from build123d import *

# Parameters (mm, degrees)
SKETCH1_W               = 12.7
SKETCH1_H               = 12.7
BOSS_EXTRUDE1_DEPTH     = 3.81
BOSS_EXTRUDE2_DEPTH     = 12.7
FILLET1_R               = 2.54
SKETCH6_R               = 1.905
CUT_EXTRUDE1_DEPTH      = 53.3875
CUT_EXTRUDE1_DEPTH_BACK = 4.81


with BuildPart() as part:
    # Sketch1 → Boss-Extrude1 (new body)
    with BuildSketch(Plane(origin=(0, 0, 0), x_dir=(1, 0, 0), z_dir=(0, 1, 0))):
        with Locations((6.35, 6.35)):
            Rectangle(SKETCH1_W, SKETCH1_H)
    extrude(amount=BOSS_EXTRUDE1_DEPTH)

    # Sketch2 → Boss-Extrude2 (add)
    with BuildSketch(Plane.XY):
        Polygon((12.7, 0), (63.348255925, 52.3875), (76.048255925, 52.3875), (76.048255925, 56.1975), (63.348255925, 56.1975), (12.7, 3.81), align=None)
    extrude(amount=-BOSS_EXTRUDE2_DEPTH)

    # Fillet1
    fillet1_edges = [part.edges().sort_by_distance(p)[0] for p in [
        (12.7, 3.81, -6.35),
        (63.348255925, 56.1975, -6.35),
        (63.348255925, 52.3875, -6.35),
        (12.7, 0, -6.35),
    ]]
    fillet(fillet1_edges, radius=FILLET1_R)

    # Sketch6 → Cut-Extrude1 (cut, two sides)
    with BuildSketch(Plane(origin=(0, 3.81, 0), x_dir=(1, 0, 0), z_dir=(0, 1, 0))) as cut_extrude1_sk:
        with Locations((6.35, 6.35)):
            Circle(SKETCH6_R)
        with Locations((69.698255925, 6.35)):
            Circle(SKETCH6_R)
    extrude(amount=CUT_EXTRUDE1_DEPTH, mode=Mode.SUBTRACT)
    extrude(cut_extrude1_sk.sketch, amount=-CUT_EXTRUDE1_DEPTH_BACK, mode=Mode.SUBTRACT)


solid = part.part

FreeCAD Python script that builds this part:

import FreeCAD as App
import Part
import Sketcher
from FreeCAD import Vector
Q = App.Units.Quantity


def edges_at(feature, points):
    """Names of the edges that pass closest to the given points."""
    edges = feature.Shape.Edges
    near = lambda p: min(range(len(edges)), key=lambda i: edges[i].distToShape(Part.Vertex(*p))[0])
    return sorted({f"Edge{near(p) + 1}" for p in points})

doc = App.newDocument("Part")
params = doc.addObject("Spreadsheet::Sheet", "Params")
for row, (alias, value) in enumerate([
    ("sketch1_width", "0.5 in"),
    ("pad1_length", "0.15 in"),
    ("sketch2_width", "0.5 in"),
    ("sketch2_height", "0.15 in"),
    ("pad2_length", "0.5 in"),
    ("fillet_radius", "0.1 in"),
    ("sketch3_diameter", "0.15 in"),
], start=1):
    params.set(f"A{row}", alias)
    params.set(f"B{row}", "=" + value)
    params.setAlias(f"B{row}", alias)

body = doc.addObject("PartDesign::Body", "Body")

sketch1 = body.newObject("Sketcher::SketchObject", "Sketch")
sketch1.AttachmentSupport = (doc.getObject("XZ_Plane"), [""])
sketch1.MapMode = "FlatFace"
sketch1.addGeometry(Part.LineSegment(Vector(0, -12.7, 0), Vector(0, 0, 0)), False)
sketch1.addGeometry(Part.LineSegment(Vector(0, 0, 0), Vector(12.7, 0, 0)), False)
sketch1.addGeometry(Part.LineSegment(Vector(12.7, 0, 0), Vector(12.7, -12.7, 0)), False)
sketch1.addGeometry(Part.LineSegment(Vector(12.7, -12.7, 0), Vector(0, -12.7, 0)), False)
sketch1.addConstraint(Sketcher.Constraint("Coincident", 0, 2, 1, 1))
sketch1.addConstraint(Sketcher.Constraint("Coincident", 1, 2, 2, 1))
sketch1.addConstraint(Sketcher.Constraint("Coincident", 2, 2, 3, 1))
sketch1.addConstraint(Sketcher.Constraint("Coincident", 3, 2, 0, 1))
sketch1.addConstraint(Sketcher.Constraint("Vertical", 0))
sketch1.addConstraint(Sketcher.Constraint("Horizontal", 1))
sketch1.addConstraint(Sketcher.Constraint("Vertical", 2))
sketch1.addConstraint(Sketcher.Constraint("Horizontal", 3))
sketch1.addConstraint(Sketcher.Constraint("Coincident", 0, 2, -1, 1))
sketch1.addConstraint(Sketcher.Constraint("Equal", 3, 0))
sketch1.addConstraint(Sketcher.Constraint("DistanceX", 1, 1, 1, 2, Q("0.5 in")))
sketch1.setExpression("Constraints[10]", "Params.sketch1_width")
pad1 = body.newObject("PartDesign::Pad", "Pad")
pad1.Profile = sketch1
pad1.setExpression("Length", "Params.pad1_length")
pad1.Reversed = True

sketch2 = body.newObject("Sketcher::SketchObject", "Sketch001")
sketch2.AttachmentSupport = (doc.getObject("XY_Plane"), [""])
sketch2.MapMode = "FlatFace"
sketch2.addGeometry(Part.LineSegment(Vector(12.7, 0, 0), Vector(63.348256, 52.3875, 0)), False)
sketch2.addGeometry(Part.LineSegment(Vector(63.348256, 52.3875, 0), Vector(76.048256, 52.3875, 0)), False)
sketch2.addGeometry(Part.LineSegment(Vector(76.048256, 52.3875, 0), Vector(76.048256, 56.1975, 0)), False)
sketch2.addGeometry(Part.LineSegment(Vector(76.048256, 56.1975, 0), Vector(63.348256, 56.1975, 0)), False)
sketch2.addGeometry(Part.LineSegment(Vector(63.348256, 56.1975, 0), Vector(12.7, 3.81, 0)), False)
sketch2.addGeometry(Part.LineSegment(Vector(12.7, 3.81, 0), Vector(12.7, 0, 0)), False)
sketch2.addConstraint(Sketcher.Constraint("Coincident", 0, 2, 1, 1))
sketch2.addConstraint(Sketcher.Constraint("Coincident", 1, 2, 2, 1))
sketch2.addConstraint(Sketcher.Constraint("Coincident", 2, 2, 3, 1))
sketch2.addConstraint(Sketcher.Constraint("Coincident", 3, 2, 4, 1))
sketch2.addConstraint(Sketcher.Constraint("Coincident", 4, 2, 5, 1))
sketch2.addConstraint(Sketcher.Constraint("Coincident", 5, 2, 0, 1))
sketch2.addConstraint(Sketcher.Constraint("Horizontal", 1))
sketch2.addConstraint(Sketcher.Constraint("Vertical", 2))
sketch2.addConstraint(Sketcher.Constraint("Horizontal", 3))
sketch2.addConstraint(Sketcher.Constraint("Vertical", 5))
sketch2.addConstraint(Sketcher.Constraint("PointOnObject", 5, 2, -1))
sketch2.addConstraint(Sketcher.Constraint("Parallel", 0, 4))
sketch2.addConstraint(Sketcher.Constraint("Vertical", 0, 2, 3, 2))
sketch2.addConstraint(Sketcher.Constraint("DistanceX", 1, 1, 1, 2, Q("0.5 in")))
sketch2.addConstraint(Sketcher.Constraint("DistanceY", 2, 1, 2, 2, Q("0.15 in")))
sketch2.addConstraint(Sketcher.Constraint("DistanceX", -1, 1, 4, 2, Q("0.5 in")))
sketch2.addConstraint(Sketcher.Constraint("DistanceY", -1, 1, 0, 2, Q("2.0625 in")))
sketch2.addConstraint(Sketcher.Constraint("Distance", 0, Q("72.867661 mm")))
sketch2.setExpression("Constraints[13]", "Params.sketch2_width")
sketch2.setExpression("Constraints[14]", "Params.sketch2_height")
pad2 = body.newObject("PartDesign::Pad", "Pad001")
pad2.Profile = sketch2
pad2.setExpression("Length", "Params.pad2_length")
pad2.Reversed = True
doc.recompute()

fillet = body.newObject("PartDesign::Fillet", "Fillet")
fillet.Base = (pad2, edges_at(pad2, [
    (12.7, 3.81, -6.35),
    (63.348, 56.197, -6.35),
    (63.348, 52.388, -6.35),
    (12.7, 0, -6.35),
]))
fillet.setExpression("Radius", "Params.fillet_radius")

sketch3 = body.newObject("Sketcher::SketchObject", "Sketch002")
sketch3.AttachmentSupport = (doc.getObject("XZ_Plane"), [""])
sketch3.MapMode = "FlatFace"
sketch3.AttachmentOffset = App.Placement(Vector(0, 0, -0.15 * 25.4), App.Rotation())
sketch3.addGeometry(Part.Circle(Vector(6.35, -6.35, 0), Vector(0, 0, 1), 1.905), False)
sketch3.addGeometry(Part.Circle(Vector(69.698256, -6.35, 0), Vector(0, 0, 1), 1.905), False)
sketch3.addConstraint(Sketcher.Constraint("Equal", 0, 1))
sketch3.addConstraint(Sketcher.Constraint("Horizontal", 0, 3, 1, 3))
sketch3.addConstraint(Sketcher.Constraint("Diameter", 0, Q("0.15 in")))
sketch3.addConstraint(Sketcher.Constraint("DistanceX", -1, 1, 0, 3, Q("0.25 in")))
sketch3.addConstraint(Sketcher.Constraint("DistanceY", 0, 3, -1, 1, Q("0.25 in")))
sketch3.addConstraint(Sketcher.Constraint("DistanceX", -1, 1, 1, 3, Q("69.698256 mm")))
sketch3.setExpression("Constraints[2]", "Params.sketch3_diameter")
pocket1 = body.newObject("PartDesign::Pocket", "Pocket")
pocket1.Profile = sketch3
pocket1.Type = "ThroughAll"
pocket1.Midplane = True

doc.recompute()
